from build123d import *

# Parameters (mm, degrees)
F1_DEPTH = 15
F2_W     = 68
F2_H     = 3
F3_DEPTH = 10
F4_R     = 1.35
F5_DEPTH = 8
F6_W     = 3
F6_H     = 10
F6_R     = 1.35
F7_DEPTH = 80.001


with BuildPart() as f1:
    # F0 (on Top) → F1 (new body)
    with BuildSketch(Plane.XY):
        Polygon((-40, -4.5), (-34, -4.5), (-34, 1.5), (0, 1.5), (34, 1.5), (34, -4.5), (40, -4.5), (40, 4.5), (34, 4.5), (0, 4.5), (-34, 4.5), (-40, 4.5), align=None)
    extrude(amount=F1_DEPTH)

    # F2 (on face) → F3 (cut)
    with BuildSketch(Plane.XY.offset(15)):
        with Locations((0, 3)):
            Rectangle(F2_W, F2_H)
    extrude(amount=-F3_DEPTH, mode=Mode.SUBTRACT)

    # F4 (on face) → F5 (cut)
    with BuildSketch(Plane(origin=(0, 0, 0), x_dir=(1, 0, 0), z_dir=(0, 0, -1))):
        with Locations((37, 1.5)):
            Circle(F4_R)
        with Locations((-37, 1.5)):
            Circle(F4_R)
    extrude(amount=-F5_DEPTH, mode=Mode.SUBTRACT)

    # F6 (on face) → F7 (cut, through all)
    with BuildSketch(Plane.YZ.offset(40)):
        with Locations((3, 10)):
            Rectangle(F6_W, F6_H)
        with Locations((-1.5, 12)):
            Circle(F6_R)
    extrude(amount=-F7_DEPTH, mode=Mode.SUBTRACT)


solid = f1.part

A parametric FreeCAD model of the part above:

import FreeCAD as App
import Part
import Sketcher


def add_polygon(sketch, points):
    """Adds a closed chain of lines whose ends are joined by coincident constraints."""
    first, n = sketch.GeometryCount, len(points)
    for a, b in zip(points, points[1:] + points[:1]):
        sketch.addGeometry(Part.LineSegment(App.Vector(*a, 0), App.Vector(*b, 0)), False)
    for i in range(n):
        sketch.addConstraint(Sketcher.Constraint("Coincident", first + i, 2, first + (i + 1) % n, 1))

doc = App.newDocument("Part")
params = doc.addObject("Spreadsheet::Sheet", "Params")
for row, (alias, value) in enumerate([
    ("sketch1_width", "6 mm"),
    ("sketch1_width2", "68 mm"),
    ("sketch1_height", "9 mm"),
    ("pad1_length", "15 mm"),
    ("sketch2_width", "68 mm"),
    ("sketch2_height", "3 mm"),
    ("pocket1_length", "10 mm"),
    ("sketch3_diameter", "2.7 mm"),
    ("pocket2_length", "8 mm"),
    ("sketch4_diameter", "2.7 mm"),
    ("sketch4_width", "3 mm"),
    ("sketch4_height", "10 mm"),
], start=1):
    params.set(f"A{row}", alias)
    params.set(f"B{row}", "=" + value)
    params.setAlias(f"B{row}", alias)

body = doc.addObject("PartDesign::Body", "Body")

sketch1 = doc.addObject("Sketcher::SketchObject", "Sketch")
body.addObject(sketch1)
sketch1.AttachmentSupport = (doc.XY_Plane, [""])
sketch1.MapMode = "FlatFace"
add_polygon(sketch1, [(-40, -4), (-34, -4), (-34, 2), (34, 2), (34, -4), (40, -4), (40, 4), (-40, 4)])
sketch1.addConstraint(Sketcher.Constraint("Horizontal", 0))
sketch1.addConstraint(Sketcher.Constraint("Vertical", 1))
sketch1.addConstraint(Sketcher.Constraint("Horizontal", 2))
sketch1.addConstraint(Sketcher.Constraint("Vertical", 3))
sketch1.addConstraint(Sketcher.Constraint("Horizontal", 4))
sketch1.addConstraint(Sketcher.Constraint("Vertical", 5))
sketch1.addConstraint(Sketcher.Constraint("Horizontal", 6))
sketch1.addConstraint(Sketcher.Constraint("Vertical", 7))
sketch1.addConstraint(Sketcher.Constraint("Symmetric", 4, 2, 6, 2, -1, 1))
sketch1.addConstraint(Sketcher.Constraint("Symmetric", 0, 2, 3, 2, -2))
sketch1.addConstraint(Sketcher.Constraint("Equal", 4, 1))
sketch1.addConstraint(Sketcher.Constraint("DistanceX", 0, 1, 0, 2, 6.0))
sketch1.addConstraint(Sketcher.Constraint("DistanceX", 2, 1, 2, 2, 68.0))
sketch1.addConstraint(Sketcher.Constraint("DistanceY", 5, 1, 5, 2, 9.0))
sketch1.setExpression("Constraints[19]", "Params.sketch1_width")
sketch1.setExpression("Constraints[20]", "Params.sketch1_width2")
sketch1.setExpression("Constraints[21]", "Params.sketch1_height")
pad1 = doc.addObject("PartDesign::Pad", "Pad")
body.addObject(pad1)
pad1.Profile = sketch1
pad1.setExpression("Length", "Params.pad1_length")

sketch2 = doc.addObject("Sketcher::SketchObject", "Sketch001")
body.addObject(sketch2)
sketch2.AttachmentSupport = (doc.XY_Plane, [""])
sketch2.MapMode = "FlatFace"
sketch2.AttachmentOffset = App.Placement(App.Vector(0, 0, 15), App.Rotation())
add_polygon(sketch2, [(-34, 4.5), (-34, 1.5), (34, 1.5), (34, 4.5)])
sketch2.addConstraint(Sketcher.Constraint("Vertical", 0))
sketch2.addConstraint(Sketcher.Constraint("Horizontal", 1))
sketch2.addConstraint(Sketcher.Constraint("Vertical", 2))
sketch2.addConstraint(Sketcher.Constraint("Horizontal", 3))
sketch2.addConstraint(Sketcher.Constraint("DistanceX", 1, 1, 1, 2, 68.0))
sketch2.addConstraint(Sketcher.Constraint("DistanceY", 0, 2, 0, 1, 3.0))
sketch2.addConstraint(Sketcher.Constraint("DistanceX", 0, 2, -1, 1, 34.0))
sketch2.addConstraint(Sketcher.Constraint("DistanceY", -1, 1, 0, 2, 1.5))
sketch2.setExpression("Constraints[8]", "Params.sketch2_width")
sketch2.setExpression("Constraints[9]", "Params.sketch2_height")
pocket1 = doc.addObject("PartDesign::Pocket", "Pocket")
body.addObject(pocket1)
pocket1.Profile = sketch2
pocket1.setExpression("Length", "Params.pocket1_length")

sketch3 = doc.addObject("Sketcher::SketchObject", "Sketch002")
body.addObject(sketch3)
sketch3.AttachmentSupport = (doc.XY_Plane, [""])
sketch3.MapMode = "FlatFace"
sketch3.addGeometry(Part.Circle(App.Vector(37, -1.5, 0), App.Vector(0, 0, 1), 1.4), False)
sketch3.addGeometry(Part.Circle(App.Vector(-37, -1.5, 0), App.Vector(0, 0, 1), 1.4), False)
sketch3.addConstraint(Sketcher.Constraint("Equal", 0, 1))
sketch3.addConstraint(Sketcher.Constraint("Symmetric", 0, 3, 1, 3, -2))
sketch3.addConstraint(Sketcher.Constraint("Diameter", 0, 2.7))
sketch3.addConstraint(Sketcher.Constraint("DistanceX", -1, 1, 0, 3, 37.0))
sketch3.addConstraint(Sketcher.Constraint("DistanceY", 0, 3, -1, 1, 1.5))
sketch3.setExpression("Constraints[2]", "Params.sketch3_diameter")
pocket2 = doc.addObject("PartDesign::Pocket", "Pocket001")
body.addObject(pocket2)
pocket2.Profile = sketch3
pocket2.setExpression("Length", "Params.pocket2_length")
pocket2.Reversed = True

sketch4 = doc.addObject("Sketcher::SketchObject", "Sketch003")
body.addObject(sketch4)
sketch4.AttachmentSupport = (doc.YZ_Plane, [""])
sketch4.MapMode = "FlatFace"
sketch4.AttachmentOffset = App.Placement(App.Vector(0, 0, 40), App.Rotation())
add_polygon(sketch4, [(1.5, 15), (1.5, 5), (4.5, 5), (4.5, 15)])
sketch4.addGeometry(Part.Circle(App.Vector(-1.5, 12, 0), App.Vector(0, 0, 1), 1.4), False)
sketch4.addConstraint(Sketcher.Constraint("Vertical", 0))
sketch4.addConstraint(Sketcher.Constraint("Horizontal", 1))
sketch4.addConstraint(Sketcher.Constraint("Vertical", 2))
sketch4.addConstraint(Sketcher.Constraint("Horizontal", 3))
sketch4.addConstraint(Sketcher.Constraint("Diameter", 4, 2.7))
sketch4.addConstraint(Sketcher.Constraint("DistanceX", 1, 1, 1, 2, 3.0))
sketch4.addConstraint(Sketcher.Constraint("DistanceY", 0, 2, 0, 1, 10.0))
sketch4.addConstraint(Sketcher.Constraint("DistanceY", -1, 1, 4, 3, 12.0))
sketch4.addConstraint(Sketcher.Constraint("DistanceY", -1, 1, 0, 2, 5.0))
sketch4.addConstraint(Sketcher.Constraint("DistanceX", 4, 3, 0, 2, 3.0))
sketch4.addConstraint(Sketcher.Constraint("DistanceX", 4, 3, -1, 1, 1.5))
sketch4.setExpression("Constraints[8]", "Params.sketch4_diameter")
sketch4.setExpression("Constraints[9]", "Params.sketch4_width")
sketch4.setExpression("Constraints[10]", "Params.sketch4_height")
pocket3 = doc.addObject("PartDesign::Pocket", "Pocket002")
body.addObject(pocket3)
pocket3.Profile = sketch4
pocket3.Type = "ThroughAll"

doc.recompute()
